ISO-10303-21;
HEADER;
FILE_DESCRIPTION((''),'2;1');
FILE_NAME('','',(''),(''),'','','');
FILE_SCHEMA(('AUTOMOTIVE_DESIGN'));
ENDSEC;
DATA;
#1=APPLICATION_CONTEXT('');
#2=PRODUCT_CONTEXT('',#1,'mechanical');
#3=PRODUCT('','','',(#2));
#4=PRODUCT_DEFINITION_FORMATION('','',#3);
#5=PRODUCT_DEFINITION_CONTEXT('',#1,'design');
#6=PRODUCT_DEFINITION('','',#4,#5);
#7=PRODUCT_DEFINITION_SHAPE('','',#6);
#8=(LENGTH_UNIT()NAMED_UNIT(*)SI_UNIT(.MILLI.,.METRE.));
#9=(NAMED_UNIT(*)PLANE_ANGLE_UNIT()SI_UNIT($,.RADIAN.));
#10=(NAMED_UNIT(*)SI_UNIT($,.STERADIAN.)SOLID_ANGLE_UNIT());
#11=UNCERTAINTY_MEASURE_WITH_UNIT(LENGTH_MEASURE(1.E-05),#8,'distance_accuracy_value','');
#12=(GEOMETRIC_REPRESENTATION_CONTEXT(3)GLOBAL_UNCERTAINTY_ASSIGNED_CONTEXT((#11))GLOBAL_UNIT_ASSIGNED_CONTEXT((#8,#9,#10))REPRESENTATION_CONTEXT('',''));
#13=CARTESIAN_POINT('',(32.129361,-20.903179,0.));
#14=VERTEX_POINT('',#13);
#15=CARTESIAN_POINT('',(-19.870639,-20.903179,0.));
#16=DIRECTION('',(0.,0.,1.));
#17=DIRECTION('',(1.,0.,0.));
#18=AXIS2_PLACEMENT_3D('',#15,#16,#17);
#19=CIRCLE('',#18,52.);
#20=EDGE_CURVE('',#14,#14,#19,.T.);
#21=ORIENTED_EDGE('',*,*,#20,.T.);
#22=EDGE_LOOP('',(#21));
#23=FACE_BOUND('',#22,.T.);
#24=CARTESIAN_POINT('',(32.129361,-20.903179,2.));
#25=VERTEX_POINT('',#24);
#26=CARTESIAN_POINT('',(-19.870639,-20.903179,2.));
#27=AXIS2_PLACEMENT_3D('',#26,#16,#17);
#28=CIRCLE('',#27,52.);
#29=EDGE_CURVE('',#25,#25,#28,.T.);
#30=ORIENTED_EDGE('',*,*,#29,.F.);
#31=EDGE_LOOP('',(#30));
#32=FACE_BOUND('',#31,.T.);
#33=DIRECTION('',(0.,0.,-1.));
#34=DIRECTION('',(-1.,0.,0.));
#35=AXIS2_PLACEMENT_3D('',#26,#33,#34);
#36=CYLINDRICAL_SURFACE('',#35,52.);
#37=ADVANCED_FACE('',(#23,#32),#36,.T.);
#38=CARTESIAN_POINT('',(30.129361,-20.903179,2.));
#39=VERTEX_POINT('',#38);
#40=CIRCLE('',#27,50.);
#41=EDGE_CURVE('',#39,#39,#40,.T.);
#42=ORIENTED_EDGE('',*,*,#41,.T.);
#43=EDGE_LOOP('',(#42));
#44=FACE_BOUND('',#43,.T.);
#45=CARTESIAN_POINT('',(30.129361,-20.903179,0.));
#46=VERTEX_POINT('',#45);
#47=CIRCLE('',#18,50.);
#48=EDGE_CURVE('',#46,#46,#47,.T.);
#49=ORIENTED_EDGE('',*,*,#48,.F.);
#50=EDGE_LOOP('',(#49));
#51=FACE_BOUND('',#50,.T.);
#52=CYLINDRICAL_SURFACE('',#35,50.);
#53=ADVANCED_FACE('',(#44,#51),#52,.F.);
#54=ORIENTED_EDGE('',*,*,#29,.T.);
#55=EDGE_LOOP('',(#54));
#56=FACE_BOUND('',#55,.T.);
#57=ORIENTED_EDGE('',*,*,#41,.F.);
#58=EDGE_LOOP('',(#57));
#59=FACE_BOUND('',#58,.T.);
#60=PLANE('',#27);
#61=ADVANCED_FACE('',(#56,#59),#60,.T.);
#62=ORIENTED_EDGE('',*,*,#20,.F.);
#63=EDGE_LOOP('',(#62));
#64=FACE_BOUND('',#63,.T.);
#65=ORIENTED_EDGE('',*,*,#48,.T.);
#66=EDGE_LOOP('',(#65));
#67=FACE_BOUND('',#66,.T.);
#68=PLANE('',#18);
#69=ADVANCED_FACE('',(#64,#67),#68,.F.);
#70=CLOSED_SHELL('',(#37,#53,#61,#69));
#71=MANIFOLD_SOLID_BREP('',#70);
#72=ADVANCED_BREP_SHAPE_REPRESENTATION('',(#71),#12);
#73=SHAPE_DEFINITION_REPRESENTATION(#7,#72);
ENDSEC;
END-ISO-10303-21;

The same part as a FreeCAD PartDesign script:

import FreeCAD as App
import Part
import Sketcher

V = App.Vector

doc = App.newDocument("Part")
body = doc.addObject("PartDesign::Body", "Body")

# Sketch on XY plane
sketch1 = body.newObject("Sketcher::SketchObject", "Sketch")
sketch1.AttachmentSupport = (doc.getObject("XY_Plane"), [""])
sketch1.MapMode = "FlatFace"
sketch1.addGeometry([
    Part.Circle(V(-20, -21, 0), V(0, 0, 1), 52),
    Part.Circle(V(-20, -21, 0), V(0, 0, 1), 50),
], False)
sketch1.addConstraint([
    Sketcher.Constraint("Coincident", 1, 3, 0, 3),
    Sketcher.Constraint("Diameter", 0, 104.0),
    Sketcher.Constraint("Diameter", 1, 100.0),
    Sketcher.Constraint("DistanceX", 0, 3, -1, 1, 19.870639),
    Sketcher.Constraint("DistanceY", 0, 3, -1, 1, 20.903179),
])
pad1 = body.newObject("PartDesign::Pad", "Pad")
pad1.Profile = sketch1
pad1.Length = 2

doc.recompute()
